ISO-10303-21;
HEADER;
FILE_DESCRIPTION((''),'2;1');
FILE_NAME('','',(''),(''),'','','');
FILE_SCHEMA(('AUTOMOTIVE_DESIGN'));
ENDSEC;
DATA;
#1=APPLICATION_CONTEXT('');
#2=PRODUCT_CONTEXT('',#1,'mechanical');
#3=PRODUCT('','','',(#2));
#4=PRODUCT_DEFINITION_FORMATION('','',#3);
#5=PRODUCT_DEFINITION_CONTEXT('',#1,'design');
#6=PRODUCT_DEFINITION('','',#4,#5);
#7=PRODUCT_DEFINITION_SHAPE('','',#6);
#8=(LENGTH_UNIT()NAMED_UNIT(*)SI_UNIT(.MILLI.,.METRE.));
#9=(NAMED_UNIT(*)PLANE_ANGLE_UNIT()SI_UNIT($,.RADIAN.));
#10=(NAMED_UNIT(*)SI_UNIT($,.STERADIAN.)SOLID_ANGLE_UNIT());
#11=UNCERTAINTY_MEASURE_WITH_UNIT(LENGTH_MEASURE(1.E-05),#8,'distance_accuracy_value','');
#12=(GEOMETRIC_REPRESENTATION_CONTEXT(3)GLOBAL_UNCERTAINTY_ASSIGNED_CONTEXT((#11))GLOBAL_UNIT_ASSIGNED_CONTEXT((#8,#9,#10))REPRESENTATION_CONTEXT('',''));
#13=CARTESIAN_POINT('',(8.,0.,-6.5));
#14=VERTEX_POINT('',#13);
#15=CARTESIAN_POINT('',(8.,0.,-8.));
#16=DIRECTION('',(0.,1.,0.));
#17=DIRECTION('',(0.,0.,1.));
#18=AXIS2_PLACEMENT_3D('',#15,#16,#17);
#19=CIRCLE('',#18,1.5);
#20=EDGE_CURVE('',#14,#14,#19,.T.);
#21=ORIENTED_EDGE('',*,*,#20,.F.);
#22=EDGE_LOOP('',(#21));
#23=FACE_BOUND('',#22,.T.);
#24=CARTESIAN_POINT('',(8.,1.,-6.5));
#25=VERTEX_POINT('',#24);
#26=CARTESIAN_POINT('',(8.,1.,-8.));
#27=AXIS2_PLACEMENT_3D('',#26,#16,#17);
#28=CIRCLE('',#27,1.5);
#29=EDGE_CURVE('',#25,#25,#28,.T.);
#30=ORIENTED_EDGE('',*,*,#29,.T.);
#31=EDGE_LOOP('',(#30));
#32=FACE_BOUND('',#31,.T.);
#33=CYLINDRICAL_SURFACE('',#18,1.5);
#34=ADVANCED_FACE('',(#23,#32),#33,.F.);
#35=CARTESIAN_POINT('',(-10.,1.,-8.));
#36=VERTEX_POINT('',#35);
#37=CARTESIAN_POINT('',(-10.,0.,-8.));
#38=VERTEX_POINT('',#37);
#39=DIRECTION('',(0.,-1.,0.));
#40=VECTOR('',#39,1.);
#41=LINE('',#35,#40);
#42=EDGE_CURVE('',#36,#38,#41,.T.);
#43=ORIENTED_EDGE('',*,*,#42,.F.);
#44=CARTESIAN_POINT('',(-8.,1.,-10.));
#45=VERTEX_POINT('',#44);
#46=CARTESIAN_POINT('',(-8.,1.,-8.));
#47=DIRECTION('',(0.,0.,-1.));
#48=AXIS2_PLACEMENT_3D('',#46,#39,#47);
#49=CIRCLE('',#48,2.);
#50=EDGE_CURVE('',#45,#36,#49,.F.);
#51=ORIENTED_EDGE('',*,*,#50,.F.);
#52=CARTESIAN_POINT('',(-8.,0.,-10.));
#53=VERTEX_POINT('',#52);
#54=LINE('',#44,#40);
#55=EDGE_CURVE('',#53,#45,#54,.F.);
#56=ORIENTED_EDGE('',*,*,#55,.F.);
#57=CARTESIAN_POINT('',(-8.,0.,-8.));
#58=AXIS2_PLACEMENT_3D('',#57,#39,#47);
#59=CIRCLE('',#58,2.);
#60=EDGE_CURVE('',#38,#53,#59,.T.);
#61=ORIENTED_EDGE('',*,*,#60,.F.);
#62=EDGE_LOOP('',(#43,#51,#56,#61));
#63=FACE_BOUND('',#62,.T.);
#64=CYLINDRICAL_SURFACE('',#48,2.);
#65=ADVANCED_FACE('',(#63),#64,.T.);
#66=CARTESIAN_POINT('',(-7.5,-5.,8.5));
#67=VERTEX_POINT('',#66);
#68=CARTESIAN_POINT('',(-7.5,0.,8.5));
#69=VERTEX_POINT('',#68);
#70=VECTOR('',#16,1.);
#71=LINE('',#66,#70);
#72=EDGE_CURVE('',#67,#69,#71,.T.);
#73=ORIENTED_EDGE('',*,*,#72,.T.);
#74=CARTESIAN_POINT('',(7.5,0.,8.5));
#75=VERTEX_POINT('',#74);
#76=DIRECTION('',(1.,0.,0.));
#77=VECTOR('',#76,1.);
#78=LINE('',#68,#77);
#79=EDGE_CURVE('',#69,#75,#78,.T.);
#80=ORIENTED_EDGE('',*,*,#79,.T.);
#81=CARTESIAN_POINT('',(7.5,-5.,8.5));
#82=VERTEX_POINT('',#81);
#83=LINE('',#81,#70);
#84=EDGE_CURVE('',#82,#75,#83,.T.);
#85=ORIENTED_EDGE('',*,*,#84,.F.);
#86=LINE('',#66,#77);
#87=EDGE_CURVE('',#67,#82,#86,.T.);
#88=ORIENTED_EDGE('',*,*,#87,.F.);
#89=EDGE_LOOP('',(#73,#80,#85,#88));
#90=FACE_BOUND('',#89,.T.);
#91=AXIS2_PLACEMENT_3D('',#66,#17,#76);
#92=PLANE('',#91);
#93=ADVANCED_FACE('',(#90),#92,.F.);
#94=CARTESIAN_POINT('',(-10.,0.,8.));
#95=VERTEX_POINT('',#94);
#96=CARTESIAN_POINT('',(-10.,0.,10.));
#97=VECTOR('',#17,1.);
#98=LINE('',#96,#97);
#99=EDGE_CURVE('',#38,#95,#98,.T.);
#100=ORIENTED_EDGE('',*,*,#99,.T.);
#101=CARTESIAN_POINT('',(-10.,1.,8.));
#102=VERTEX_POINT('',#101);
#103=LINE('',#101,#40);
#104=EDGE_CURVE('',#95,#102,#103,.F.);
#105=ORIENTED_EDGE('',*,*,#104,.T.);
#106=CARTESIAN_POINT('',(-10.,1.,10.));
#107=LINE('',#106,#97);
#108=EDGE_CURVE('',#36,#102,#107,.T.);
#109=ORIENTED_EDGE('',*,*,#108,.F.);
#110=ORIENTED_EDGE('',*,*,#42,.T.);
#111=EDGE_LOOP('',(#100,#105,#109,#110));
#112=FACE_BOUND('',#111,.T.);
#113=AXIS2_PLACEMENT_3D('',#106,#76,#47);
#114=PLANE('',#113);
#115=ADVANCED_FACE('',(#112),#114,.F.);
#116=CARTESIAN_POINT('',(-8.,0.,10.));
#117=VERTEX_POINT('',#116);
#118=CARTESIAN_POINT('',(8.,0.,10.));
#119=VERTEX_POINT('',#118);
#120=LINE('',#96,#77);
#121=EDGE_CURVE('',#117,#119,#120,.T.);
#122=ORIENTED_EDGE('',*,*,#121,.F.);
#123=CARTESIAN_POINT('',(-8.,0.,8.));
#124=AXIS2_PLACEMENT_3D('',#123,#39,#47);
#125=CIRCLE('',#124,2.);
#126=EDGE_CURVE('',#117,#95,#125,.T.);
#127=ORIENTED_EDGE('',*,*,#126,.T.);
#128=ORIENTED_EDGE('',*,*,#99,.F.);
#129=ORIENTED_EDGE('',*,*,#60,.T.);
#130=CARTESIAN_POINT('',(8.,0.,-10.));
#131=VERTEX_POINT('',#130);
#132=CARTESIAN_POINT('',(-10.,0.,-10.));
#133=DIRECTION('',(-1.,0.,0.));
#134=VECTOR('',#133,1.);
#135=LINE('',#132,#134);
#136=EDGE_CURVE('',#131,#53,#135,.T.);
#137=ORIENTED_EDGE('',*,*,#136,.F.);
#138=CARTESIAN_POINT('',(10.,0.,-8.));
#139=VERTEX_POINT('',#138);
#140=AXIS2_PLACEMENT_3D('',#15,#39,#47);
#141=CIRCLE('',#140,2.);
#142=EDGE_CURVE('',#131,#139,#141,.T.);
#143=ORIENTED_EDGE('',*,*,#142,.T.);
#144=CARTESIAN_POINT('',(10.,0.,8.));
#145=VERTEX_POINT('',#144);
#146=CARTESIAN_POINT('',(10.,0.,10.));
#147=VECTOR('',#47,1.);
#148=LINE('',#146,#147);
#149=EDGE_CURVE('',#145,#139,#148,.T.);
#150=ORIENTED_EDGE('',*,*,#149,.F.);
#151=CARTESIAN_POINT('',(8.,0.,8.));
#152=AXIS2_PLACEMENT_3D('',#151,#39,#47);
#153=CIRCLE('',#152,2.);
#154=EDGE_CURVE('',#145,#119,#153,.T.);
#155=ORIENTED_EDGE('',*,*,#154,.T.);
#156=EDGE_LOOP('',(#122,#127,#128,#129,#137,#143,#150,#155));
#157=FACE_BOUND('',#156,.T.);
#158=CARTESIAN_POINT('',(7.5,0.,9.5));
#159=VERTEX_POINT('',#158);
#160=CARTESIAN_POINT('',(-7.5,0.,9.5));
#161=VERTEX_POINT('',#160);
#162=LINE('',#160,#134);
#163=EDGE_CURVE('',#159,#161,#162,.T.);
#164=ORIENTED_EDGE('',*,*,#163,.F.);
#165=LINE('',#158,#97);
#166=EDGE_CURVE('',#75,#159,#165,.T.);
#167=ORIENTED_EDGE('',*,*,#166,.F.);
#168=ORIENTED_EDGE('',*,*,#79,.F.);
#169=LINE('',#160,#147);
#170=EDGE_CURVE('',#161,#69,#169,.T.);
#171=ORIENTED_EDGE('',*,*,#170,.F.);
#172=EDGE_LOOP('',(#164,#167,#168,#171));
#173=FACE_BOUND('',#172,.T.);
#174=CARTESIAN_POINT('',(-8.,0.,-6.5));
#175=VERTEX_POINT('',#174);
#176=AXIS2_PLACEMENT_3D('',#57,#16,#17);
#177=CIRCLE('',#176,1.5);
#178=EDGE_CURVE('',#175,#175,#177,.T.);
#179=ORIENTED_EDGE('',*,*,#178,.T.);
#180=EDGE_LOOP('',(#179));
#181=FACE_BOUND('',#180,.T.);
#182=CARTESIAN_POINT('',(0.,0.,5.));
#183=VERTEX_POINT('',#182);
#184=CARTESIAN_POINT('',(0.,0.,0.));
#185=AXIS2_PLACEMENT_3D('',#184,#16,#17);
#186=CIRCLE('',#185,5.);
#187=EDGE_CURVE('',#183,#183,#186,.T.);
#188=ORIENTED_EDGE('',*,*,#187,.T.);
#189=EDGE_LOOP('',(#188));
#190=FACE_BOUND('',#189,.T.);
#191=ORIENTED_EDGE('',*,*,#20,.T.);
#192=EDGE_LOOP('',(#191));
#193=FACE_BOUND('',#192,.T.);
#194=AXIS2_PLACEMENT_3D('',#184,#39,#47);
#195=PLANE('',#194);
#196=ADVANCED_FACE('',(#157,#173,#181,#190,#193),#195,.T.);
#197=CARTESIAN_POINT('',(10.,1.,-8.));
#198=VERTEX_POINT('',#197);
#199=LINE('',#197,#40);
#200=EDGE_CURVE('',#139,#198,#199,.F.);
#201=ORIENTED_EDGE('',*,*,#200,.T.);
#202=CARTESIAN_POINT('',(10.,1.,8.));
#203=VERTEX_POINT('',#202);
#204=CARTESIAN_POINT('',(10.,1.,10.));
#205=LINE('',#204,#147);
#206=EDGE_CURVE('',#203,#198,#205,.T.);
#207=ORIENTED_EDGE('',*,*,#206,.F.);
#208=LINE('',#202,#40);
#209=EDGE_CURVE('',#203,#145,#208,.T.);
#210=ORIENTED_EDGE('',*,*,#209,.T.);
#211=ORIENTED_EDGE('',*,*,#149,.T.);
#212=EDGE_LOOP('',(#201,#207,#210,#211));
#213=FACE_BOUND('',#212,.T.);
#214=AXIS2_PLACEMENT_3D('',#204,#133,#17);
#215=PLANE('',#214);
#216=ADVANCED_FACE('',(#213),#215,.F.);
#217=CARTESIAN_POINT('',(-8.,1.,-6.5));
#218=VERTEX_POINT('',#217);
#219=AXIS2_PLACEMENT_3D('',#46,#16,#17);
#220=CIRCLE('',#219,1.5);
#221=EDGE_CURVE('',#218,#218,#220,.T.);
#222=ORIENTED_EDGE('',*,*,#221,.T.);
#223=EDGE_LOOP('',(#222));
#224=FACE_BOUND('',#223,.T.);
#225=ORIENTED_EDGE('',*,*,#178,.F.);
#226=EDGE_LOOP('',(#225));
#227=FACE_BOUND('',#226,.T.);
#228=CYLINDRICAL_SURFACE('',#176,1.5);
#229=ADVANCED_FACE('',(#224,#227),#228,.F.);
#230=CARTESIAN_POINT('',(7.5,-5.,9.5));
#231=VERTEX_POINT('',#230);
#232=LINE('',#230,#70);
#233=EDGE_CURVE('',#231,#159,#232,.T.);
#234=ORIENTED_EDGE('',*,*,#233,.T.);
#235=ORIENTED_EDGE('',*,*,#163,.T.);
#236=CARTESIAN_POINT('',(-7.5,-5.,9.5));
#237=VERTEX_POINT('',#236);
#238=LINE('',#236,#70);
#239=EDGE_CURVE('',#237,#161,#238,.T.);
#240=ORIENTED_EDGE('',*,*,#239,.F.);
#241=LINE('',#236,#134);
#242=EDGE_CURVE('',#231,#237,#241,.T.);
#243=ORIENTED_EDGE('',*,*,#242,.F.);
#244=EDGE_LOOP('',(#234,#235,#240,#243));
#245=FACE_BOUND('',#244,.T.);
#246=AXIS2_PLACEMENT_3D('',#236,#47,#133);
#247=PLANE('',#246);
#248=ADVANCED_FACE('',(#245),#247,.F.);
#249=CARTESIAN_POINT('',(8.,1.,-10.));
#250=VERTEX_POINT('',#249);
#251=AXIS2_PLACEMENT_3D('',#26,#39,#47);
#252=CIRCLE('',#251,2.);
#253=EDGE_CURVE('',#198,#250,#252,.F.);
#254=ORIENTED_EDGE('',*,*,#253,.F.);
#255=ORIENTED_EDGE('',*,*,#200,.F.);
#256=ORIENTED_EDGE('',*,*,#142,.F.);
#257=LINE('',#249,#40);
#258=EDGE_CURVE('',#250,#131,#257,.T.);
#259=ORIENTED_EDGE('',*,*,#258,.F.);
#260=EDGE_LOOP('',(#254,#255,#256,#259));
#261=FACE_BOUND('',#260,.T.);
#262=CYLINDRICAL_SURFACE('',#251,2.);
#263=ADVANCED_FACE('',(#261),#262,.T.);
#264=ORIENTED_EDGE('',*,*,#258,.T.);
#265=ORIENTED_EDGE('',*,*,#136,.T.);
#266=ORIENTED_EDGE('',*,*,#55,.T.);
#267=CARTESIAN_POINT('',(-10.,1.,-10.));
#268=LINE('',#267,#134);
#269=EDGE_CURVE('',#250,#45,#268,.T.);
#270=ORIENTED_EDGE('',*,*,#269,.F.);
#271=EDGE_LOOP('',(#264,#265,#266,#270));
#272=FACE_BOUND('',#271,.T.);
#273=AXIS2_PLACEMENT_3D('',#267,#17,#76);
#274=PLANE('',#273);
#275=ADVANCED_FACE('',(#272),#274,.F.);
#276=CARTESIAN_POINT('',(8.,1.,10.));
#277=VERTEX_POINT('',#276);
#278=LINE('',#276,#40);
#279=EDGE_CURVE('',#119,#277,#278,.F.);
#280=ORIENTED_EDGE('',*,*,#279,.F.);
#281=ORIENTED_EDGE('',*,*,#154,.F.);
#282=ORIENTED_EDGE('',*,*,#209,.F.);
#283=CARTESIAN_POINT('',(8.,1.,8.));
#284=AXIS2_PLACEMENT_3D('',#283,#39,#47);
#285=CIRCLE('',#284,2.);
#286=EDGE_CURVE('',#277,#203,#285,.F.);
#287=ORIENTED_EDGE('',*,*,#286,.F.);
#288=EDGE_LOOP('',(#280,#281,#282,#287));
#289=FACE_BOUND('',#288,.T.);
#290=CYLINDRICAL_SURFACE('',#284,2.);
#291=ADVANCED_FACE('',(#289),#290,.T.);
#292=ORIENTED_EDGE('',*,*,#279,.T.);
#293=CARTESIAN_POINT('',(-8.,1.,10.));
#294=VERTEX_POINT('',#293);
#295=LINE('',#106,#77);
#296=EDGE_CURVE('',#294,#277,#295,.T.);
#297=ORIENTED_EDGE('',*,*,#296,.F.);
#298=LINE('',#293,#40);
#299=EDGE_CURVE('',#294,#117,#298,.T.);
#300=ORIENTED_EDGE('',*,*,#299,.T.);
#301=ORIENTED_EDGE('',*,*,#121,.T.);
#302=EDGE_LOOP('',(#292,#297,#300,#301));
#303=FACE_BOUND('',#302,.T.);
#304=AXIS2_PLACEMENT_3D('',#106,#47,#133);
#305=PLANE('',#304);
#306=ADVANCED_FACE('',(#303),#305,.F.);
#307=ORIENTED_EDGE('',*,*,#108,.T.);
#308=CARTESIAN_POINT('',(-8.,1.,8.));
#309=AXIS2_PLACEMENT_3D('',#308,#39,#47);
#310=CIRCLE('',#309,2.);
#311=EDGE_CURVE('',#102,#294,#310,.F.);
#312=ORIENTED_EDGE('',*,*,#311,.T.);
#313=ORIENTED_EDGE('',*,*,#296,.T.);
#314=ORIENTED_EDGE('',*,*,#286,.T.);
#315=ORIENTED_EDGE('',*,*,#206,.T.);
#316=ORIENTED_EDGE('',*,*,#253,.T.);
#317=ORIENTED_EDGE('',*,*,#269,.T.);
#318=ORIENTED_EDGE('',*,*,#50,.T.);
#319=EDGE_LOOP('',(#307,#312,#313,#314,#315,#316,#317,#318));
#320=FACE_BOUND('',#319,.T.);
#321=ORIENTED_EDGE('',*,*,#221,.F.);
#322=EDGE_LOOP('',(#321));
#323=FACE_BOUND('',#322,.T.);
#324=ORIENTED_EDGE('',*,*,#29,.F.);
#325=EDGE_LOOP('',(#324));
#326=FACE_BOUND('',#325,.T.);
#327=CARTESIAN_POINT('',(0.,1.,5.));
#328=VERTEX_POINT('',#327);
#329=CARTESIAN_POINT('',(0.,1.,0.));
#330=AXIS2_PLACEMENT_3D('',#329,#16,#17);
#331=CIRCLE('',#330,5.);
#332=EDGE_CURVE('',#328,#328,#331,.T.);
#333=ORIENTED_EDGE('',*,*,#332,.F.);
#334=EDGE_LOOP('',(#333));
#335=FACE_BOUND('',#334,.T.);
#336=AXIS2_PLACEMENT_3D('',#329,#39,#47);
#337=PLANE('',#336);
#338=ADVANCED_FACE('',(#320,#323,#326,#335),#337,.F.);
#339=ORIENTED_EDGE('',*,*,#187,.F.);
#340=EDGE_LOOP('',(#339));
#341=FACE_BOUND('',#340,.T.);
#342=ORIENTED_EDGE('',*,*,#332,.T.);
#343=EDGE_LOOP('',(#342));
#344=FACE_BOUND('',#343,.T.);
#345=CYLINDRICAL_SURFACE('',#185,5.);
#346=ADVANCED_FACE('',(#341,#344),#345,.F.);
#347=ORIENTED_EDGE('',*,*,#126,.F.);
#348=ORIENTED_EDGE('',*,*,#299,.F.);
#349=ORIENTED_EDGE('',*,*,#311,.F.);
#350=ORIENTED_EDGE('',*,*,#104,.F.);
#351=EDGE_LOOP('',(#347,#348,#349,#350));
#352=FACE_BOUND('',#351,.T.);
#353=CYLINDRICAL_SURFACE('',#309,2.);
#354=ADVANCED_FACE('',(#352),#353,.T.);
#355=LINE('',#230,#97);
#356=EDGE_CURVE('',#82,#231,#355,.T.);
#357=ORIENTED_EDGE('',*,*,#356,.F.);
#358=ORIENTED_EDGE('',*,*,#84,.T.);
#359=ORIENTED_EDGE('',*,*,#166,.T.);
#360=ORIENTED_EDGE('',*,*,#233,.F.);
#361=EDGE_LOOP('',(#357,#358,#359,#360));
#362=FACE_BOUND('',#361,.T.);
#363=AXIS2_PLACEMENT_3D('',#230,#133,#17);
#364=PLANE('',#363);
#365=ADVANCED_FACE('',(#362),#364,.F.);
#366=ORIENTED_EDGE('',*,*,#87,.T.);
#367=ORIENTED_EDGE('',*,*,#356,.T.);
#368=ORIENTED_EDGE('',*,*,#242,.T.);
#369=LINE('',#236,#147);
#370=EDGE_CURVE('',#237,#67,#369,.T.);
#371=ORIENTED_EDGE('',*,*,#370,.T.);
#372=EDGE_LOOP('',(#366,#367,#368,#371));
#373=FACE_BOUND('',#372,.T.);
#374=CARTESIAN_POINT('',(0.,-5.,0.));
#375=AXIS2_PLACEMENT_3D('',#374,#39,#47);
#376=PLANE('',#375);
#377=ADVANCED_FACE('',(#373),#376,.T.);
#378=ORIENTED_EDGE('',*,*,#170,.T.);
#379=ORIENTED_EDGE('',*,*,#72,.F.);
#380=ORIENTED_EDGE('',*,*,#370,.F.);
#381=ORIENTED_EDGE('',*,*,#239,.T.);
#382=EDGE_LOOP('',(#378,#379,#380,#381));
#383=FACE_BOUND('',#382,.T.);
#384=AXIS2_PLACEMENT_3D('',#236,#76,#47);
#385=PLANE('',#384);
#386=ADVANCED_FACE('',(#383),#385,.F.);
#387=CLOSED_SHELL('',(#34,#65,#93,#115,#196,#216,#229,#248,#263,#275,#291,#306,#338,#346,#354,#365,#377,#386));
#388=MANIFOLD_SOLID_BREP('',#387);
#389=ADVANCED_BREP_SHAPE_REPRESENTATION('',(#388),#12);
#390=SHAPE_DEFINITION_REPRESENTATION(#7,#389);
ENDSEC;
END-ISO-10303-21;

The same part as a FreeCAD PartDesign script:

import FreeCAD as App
import Part
import Sketcher

V = App.Vector


def edges_at(feature, points):
    """Names of the edges that pass closest to the given points."""
    edges = feature.Shape.Edges
    near = lambda p: min(range(len(edges)), key=lambda i: edges[i].distToShape(Part.Vertex(*p))[0])
    return sorted({f"Edge{near(p) + 1}" for p in points})

doc = App.newDocument("Part")
body = doc.addObject("PartDesign::Body", "Body")

# Sketch on XZ plane
sketch1 = body.newObject("Sketcher::SketchObject", "Sketch")
sketch1.AttachmentSupport = (doc.getObject("XZ_Plane"), [""])
sketch1.MapMode = "FlatFace"
sketch1.addGeometry([
    Part.LineSegment(V(-10, -10, 0), V(-10, 10, 0)),
    Part.LineSegment(V(-10, 10, 0), V(10, 10, 0)),
    Part.LineSegment(V(10, 10, 0), V(10, -10, 0)),
    Part.LineSegment(V(10, -10, 0), V(-10, -10, 0)),
], False)
sketch1.addConstraint([
    Sketcher.Constraint("Coincident", 0, 2, 1, 1),
    Sketcher.Constraint("Coincident", 1, 2, 2, 1),
    Sketcher.Constraint("Coincident", 2, 2, 3, 1),
    Sketcher.Constraint("Coincident", 3, 2, 0, 1),
    Sketcher.Constraint("Vertical", 0),
    Sketcher.Constraint("Horizontal", 1),
    Sketcher.Constraint("Vertical", 2),
    Sketcher.Constraint("Horizontal", 3),
    Sketcher.Constraint("Symmetric", 0, 2, 2, 2, -1, 1),
    Sketcher.Constraint("Equal", 3, 0),
    Sketcher.Constraint("DistanceX", 1, 1, 1, 2, 20.0),
])
pad1 = body.newObject("PartDesign::Pad", "Pad")
pad1.Profile = sketch1
pad1.Length = 1
pad1.Reversed = True

# Sketch on XZ plane
sketch2 = body.newObject("Sketcher::SketchObject", "Sketch001")
sketch2.AttachmentSupport = (doc.getObject("XZ_Plane"), [""])
sketch2.MapMode = "FlatFace"
sketch2.AttachmentOffset = App.Placement(V(0, 0, -1), App.Rotation())
sketch2.addGeometry([
    Part.Circle(V(0, 0, 0), V(0, 0, 1), 5),
    Part.Circle(V(-8, -8, 0), V(0, 0, 1), 1.5),
    Part.Circle(V(8, -8, 0), V(0, 0, 1), 1.5),
], False)
sketch2.addConstraint([
    Sketcher.Constraint("Coincident", 0, 3, -1, 1),
    Sketcher.Constraint("Equal", 1, 2),
    Sketcher.Constraint("Symmetric", 1, 3, 2, 3, -2),
    Sketcher.Constraint("Diameter", 0, 10.0),
    Sketcher.Constraint("Diameter", 1, 3.0),
    Sketcher.Constraint("DistanceX", 1, 3, -1, 1, 8.0),
    Sketcher.Constraint("DistanceY", 1, 3, -1, 1, 8.0),
])
pocket1 = body.newObject("PartDesign::Pocket", "Pocket")
pocket1.Profile = sketch2
pocket1.Type = "ThroughAll"
pocket1.Reversed = True
doc.recompute()

fillet = body.newObject("PartDesign::Fillet", "Fillet")
fillet.Base = (pocket1, edges_at(pocket1, [
    (10, 0.5, 10),
    (-10, 0.5, 10),
    (-10, 0.5, -10),
    (10, 0.5, -10),
]))
fillet.Radius = 2

# Sketch on XZ plane
sketch3 = body.newObject("Sketcher::SketchObject", "Sketch002")
sketch3.AttachmentSupport = (doc.getObject("XZ_Plane"), [""])
sketch3.MapMode = "FlatFace"
sketch3.addGeometry([
    Part.LineSegment(V(-7.5, 9.5, 0), V(-7.5, 8.5, 0)),
    Part.LineSegment(V(-7.5, 8.5, 0), V(7.5, 8.5, 0)),
    Part.LineSegment(V(7.5, 8.5, 0), V(7.5, 9.5, 0)),
    Part.LineSegment(V(7.5, 9.5, 0), V(-7.5, 9.5, 0)),
], False)
sketch3.addConstraint([
    Sketcher.Constraint("Coincident", 0, 2, 1, 1),
    Sketcher.Constraint("Coincident", 1, 2, 2, 1),
    Sketcher.Constraint("Coincident", 2, 2, 3, 1),
    Sketcher.Constraint("Coincident", 3, 2, 0, 1),
    Sketcher.Constraint("Vertical", 0),
    Sketcher.Constraint("Horizontal", 1),
    Sketcher.Constraint("Vertical", 2),
    Sketcher.Constraint("Horizontal", 3),
    Sketcher.Constraint("DistanceX", 1, 1, 1, 2, 15.0),
    Sketcher.Constraint("DistanceY", 0, 2, 0, 1, 1.0),
    Sketcher.Constraint("DistanceX", 0, 2, -1, 1, 7.5),
    Sketcher.Constraint("DistanceY", -1, 1, 0, 2, 8.5),
])
pad2 = body.newObject("PartDesign::Pad", "Pad001")
pad2.Profile = sketch3
pad2.Length = 5

doc.recompute()
